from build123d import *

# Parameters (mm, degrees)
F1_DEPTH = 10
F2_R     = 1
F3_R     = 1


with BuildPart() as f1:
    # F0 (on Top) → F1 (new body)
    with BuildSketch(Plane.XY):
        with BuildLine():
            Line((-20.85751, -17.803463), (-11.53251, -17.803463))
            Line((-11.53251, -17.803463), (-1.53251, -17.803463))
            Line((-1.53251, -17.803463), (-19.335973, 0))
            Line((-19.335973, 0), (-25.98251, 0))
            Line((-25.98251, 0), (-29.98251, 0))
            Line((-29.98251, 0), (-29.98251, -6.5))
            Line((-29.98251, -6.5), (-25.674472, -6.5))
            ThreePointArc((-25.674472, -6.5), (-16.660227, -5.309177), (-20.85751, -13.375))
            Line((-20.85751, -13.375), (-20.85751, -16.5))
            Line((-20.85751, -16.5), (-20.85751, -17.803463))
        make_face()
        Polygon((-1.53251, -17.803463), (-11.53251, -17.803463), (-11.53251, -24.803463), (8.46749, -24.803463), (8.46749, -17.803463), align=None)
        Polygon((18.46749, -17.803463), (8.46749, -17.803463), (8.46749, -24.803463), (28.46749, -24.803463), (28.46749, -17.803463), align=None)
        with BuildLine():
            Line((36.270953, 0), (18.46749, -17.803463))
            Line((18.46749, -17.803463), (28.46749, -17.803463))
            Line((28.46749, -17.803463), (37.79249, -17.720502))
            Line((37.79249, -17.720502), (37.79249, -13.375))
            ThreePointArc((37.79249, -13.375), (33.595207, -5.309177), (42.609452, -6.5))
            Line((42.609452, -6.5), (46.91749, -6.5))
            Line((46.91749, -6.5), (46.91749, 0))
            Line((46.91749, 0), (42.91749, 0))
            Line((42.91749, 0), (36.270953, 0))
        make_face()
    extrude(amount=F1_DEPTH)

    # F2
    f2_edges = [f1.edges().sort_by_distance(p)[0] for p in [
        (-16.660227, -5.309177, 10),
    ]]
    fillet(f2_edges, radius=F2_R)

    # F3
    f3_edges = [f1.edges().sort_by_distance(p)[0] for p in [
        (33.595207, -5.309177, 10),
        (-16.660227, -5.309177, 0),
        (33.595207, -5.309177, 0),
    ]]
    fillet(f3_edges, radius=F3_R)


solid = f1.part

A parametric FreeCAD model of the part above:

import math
import FreeCAD as App
import Part
import Sketcher
from FreeCAD import Vector
Q = App.Units.Quantity


def edges_at(feature, points):
    """Names of the edges that pass closest to the given points."""
    edges = feature.Shape.Edges
    near = lambda p: min(range(len(edges)), key=lambda i: edges[i].distToShape(Part.Vertex(*p))[0])
    return sorted({f"Edge{near(p) + 1}" for p in points})

doc = App.newDocument("Part")
body = doc.addObject("PartDesign::Body", "Body")

sketch1 = doc.addObject("Sketcher::SketchObject", "Sketch")
body.addObject(sketch1)
sketch1.AttachmentSupport = (doc.XY_Plane, [""])
sketch1.MapMode = "FlatFace"
sketch1.addGeometry([
    Part.LineSegment(Vector(-20.9, -17.8, 0), Vector(-11.5, -17.8, 0)),
    Part.LineSegment(Vector(-11.5, -17.8, 0), Vector(-11.5, -24.8, 0)),
    Part.LineSegment(Vector(-11.5, -24.8, 0), Vector(28.5, -24.8, 0)),
    Part.LineSegment(Vector(28.5, -24.8, 0), Vector(28.5, -17.8, 0)),
    Part.LineSegment(Vector(28.5, -17.8, 0), Vector(37.8, -17.7, 0)),
    Part.LineSegment(Vector(37.8, -17.7, 0), Vector(37.8, -13.4, 0)),
    Part.ArcOfCircle(Part.Circle(Vector(37.8, -8.3, 0), Vector(0, 0, 1), 5.1), math.radians(20), math.radians(270)),
    Part.LineSegment(Vector(42.6, -6.5, 0), Vector(46.9, -6.5, 0)),
    Part.LineSegment(Vector(46.9, -6.5, 0), Vector(46.9, 0, 0)),
    Part.LineSegment(Vector(46.9, 0, 0), Vector(36.3, 0, 0)),
    Part.LineSegment(Vector(36.3, 0, 0), Vector(18.5, -17.8, 0)),
    Part.LineSegment(Vector(18.5, -17.8, 0), Vector(-1.5, -17.8, 0)),
    Part.LineSegment(Vector(-1.5, -17.8, 0), Vector(-19.3, 0, 0)),
    Part.LineSegment(Vector(-19.3, 0, 0), Vector(-30, 0, 0)),
    Part.LineSegment(Vector(-30, 0, 0), Vector(-30, -6.5, 0)),
    Part.LineSegment(Vector(-30, -6.5, 0), Vector(-25.7, -6.5, 0)),
    Part.ArcOfCircle(Part.Circle(Vector(-20.9, -8.3, 0), Vector(0, 0, 1), 5.1), math.radians(-90), math.radians(160)),
    Part.LineSegment(Vector(-20.9, -13.4, 0), Vector(-20.9, -17.8, 0)),
], False)
sketch1.addConstraint([
    Sketcher.Constraint("Coincident", 0, 2, 1, 1),
    Sketcher.Constraint("Coincident", 1, 2, 2, 1),
    Sketcher.Constraint("Coincident", 2, 2, 3, 1),
    Sketcher.Constraint("Coincident", 3, 2, 4, 1),
    Sketcher.Constraint("Coincident", 4, 2, 5, 1),
    Sketcher.Constraint("Coincident", 5, 2, 6, 2),
    Sketcher.Constraint("Coincident", 6, 1, 7, 1),
    Sketcher.Constraint("Coincident", 7, 2, 8, 1),
    Sketcher.Constraint("Coincident", 8, 2, 9, 1),
    Sketcher.Constraint("Coincident", 9, 2, 10, 1),
    Sketcher.Constraint("Coincident", 10, 2, 11, 1),
    Sketcher.Constraint("Coincident", 11, 2, 12, 1),
    Sketcher.Constraint("Coincident", 12, 2, 13, 1),
    Sketcher.Constraint("Coincident", 13, 2, 14, 1),
    Sketcher.Constraint("Coincident", 14, 2, 15, 1),
    Sketcher.Constraint("Coincident", 15, 2, 16, 2),
    Sketcher.Constraint("Coincident", 16, 1, 17, 1),
    Sketcher.Constraint("Coincident", 17, 2, 0, 1),
    Sketcher.Constraint("Horizontal", 0),
    Sketcher.Constraint("Vertical", 1),
    Sketcher.Constraint("Horizontal", 2),
    Sketcher.Constraint("Vertical", 3),
    Sketcher.Constraint("Vertical", 5),
    Sketcher.Constraint("Horizontal", 7),
    Sketcher.Constraint("Vertical", 8),
    Sketcher.Constraint("Horizontal", 9),
    Sketcher.Constraint("Horizontal", 11),
    Sketcher.Constraint("Horizontal", 13),
    Sketcher.Constraint("Vertical", 14),
    Sketcher.Constraint("Horizontal", 15),
    Sketcher.Constraint("Vertical", 17),
    Sketcher.Constraint("Equal", 6, 16),
    Sketcher.Constraint("PointOnObject", 8, 2, -1),
    Sketcher.Constraint("PointOnObject", 12, 2, -1),
    Sketcher.Constraint("Perpendicular", 10, 12),
    Sketcher.Constraint("Horizontal", 6, 3, 16, 3),
    Sketcher.Constraint("Horizontal", 0, 2, 3, 2),
    Sketcher.Constraint("Horizontal", 3, 2, 10, 2),
    Sketcher.Constraint("Horizontal", 7, 2, 14, 2),
    Sketcher.Constraint("Vertical", 6, 3, 4, 2),
    Sketcher.Constraint("Equal", 9, 13),
    Sketcher.Constraint("Equal", 7, 15),
    Sketcher.Constraint("Equal", 10, 12),
    Sketcher.Constraint("DistanceX", 2, 1, 2, 2, Q("40 mm")),
    Sketcher.Constraint("DistanceX", 11, 2, 11, 1, Q("20 mm")),
    Sketcher.Constraint("DistanceY", 1, 2, 1, 1, Q("7 mm")),
    Sketcher.Constraint("DistanceY", 8, 1, 8, 2, Q("6.5 mm")),
    Sketcher.Constraint("Radius", 6, Q("5.125 mm")),
    Sketcher.Constraint("DistanceX", 10, 2, 3, 2, Q("10 mm")),
    Sketcher.Constraint("DistanceX", 0, 1, 0, 2, Q("9.325 mm")),
    Sketcher.Constraint("DistanceY", 6, 3, -1, 1, Q("8.25 mm")),
    Sketcher.Constraint("DistanceX", 16, 3, 6, 3, Q("58.65 mm")),
    Sketcher.Constraint("DistanceX", 3, 2, 7, 2, Q("18.45 mm")),
    Sketcher.Constraint("DistanceY", 5, 1, 5, 2, Q("4.345502 mm")),
    Sketcher.Constraint("Distance", 10, Q("25.177899 mm")),
    Sketcher.Constraint("DistanceX", -1, 1, 6, 3, Q("37.79249 mm")),
])
pad1 = doc.addObject("PartDesign::Pad", "Pad")
body.addObject(pad1)
pad1.Profile = sketch1
pad1.Length = 10
doc.recompute()

fillet = doc.addObject("PartDesign::Fillet", "Fillet")
body.addObject(fillet)
fillet.Base = (pad1, edges_at(pad1, [(-16.66, -5.309, 10)]))
fillet.Radius = 1
doc.recompute()

fillet2 = doc.addObject("PartDesign::Fillet", "Fillet001")
body.addObject(fillet2)
fillet2.Base = (fillet, edges_at(fillet, [(33.595, -5.309, 10), (-16.66, -5.309, 0), (33.595, -5.309, 0)]))
fillet2.Radius = 1

doc.recompute()
